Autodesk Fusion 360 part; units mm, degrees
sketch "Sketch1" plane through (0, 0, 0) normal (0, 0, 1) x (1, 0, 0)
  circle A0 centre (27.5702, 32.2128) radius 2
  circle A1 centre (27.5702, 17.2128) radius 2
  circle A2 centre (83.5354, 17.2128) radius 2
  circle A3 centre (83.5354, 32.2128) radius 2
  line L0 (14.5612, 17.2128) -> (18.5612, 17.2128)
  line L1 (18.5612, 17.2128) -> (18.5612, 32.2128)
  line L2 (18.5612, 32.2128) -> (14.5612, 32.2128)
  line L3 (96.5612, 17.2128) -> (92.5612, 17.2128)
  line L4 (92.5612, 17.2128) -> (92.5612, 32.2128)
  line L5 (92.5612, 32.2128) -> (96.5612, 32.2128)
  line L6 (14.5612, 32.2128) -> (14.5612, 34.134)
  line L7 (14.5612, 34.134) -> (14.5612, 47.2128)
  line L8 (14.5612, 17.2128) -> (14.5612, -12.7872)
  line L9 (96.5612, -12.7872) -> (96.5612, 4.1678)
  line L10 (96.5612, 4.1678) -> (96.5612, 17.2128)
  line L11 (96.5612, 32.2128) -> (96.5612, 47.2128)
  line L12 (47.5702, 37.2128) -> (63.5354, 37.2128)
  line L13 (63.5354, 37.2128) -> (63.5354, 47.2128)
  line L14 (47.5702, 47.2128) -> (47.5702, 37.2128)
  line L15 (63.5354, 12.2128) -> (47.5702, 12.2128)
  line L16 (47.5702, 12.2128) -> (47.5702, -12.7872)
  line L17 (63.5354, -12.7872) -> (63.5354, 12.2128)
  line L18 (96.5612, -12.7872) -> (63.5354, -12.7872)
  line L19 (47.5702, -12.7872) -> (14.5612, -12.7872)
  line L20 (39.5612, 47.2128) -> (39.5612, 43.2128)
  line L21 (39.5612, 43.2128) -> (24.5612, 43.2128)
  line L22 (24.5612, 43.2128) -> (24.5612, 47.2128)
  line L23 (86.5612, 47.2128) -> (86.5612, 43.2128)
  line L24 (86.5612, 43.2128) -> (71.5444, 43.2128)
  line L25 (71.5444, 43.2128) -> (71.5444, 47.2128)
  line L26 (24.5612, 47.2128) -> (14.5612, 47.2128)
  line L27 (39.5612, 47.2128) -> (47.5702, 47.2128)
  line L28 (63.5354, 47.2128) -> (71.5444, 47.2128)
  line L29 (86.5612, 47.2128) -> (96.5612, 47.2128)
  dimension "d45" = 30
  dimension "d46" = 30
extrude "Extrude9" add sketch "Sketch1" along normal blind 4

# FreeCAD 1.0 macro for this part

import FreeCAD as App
import Part
import Sketcher


def add_polygon(sketch, points):
    """Adds a closed chain of lines whose ends are joined by coincident constraints."""
    first, n = sketch.GeometryCount, len(points)
    for a, b in zip(points, points[1:] + points[:1]):
        sketch.addGeometry(Part.LineSegment(App.Vector(*a, 0), App.Vector(*b, 0)), False)
    for i in range(n):
        sketch.addConstraint(Sketcher.Constraint("Coincident", first + i, 2, first + (i + 1) % n, 1))

doc = App.newDocument("Part")
body = doc.addObject("PartDesign::Body", "Body")

# Sketch on XY plane
sketch1 = body.newObject("Sketcher::SketchObject", "Sketch")
sketch1.AttachmentSupport = (doc.getObject("XY_Plane"), [""])
sketch1.MapMode = "FlatFace"
add_polygon(sketch1, [(18.5612, 17.2128), (14.5612, 17.2128), (14.5612, -12.7872), (47.5702, -12.7872), (47.5702, 12.2128), (63.5354, 12.2128), (63.5354, -12.7872), (96.5612, -12.7872), (96.5612, 17.2128), (92.5612, 17.2128), (92.5612, 32.2128), (96.5612, 32.2128), (96.5612, 47.2128), (86.5612, 47.2128), (86.5612, 43.2128), (71.5444, 43.2128), (71.5444, 47.2128), (63.5354, 47.2128), (63.5354, 37.2128), (47.5702, 37.2128), (47.5702, 47.2128), (39.5612, 47.2128), (39.5612, 43.2128), (24.5612, 43.2128), (24.5612, 47.2128), (14.5612, 47.2128), (14.5612, 32.2128), (18.5612, 32.2128)])  # lines 0-27
sketch1.addGeometry(Part.Circle(App.Vector(27.5702, 17.2128, 0), App.Vector(0, 0, 1), 2), False)  # 28
sketch1.addGeometry(Part.Circle(App.Vector(27.5702, 32.2128, 0), App.Vector(0, 0, 1), 2), False)  # 29
sketch1.addGeometry(Part.Circle(App.Vector(83.5354, 17.2128, 0), App.Vector(0, 0, 1), 2), False)  # 30
sketch1.addGeometry(Part.Circle(App.Vector(83.5354, 32.2128, 0), App.Vector(0, 0, 1), 2), False)  # 31
sketch1.addConstraint(Sketcher.Constraint("Horizontal", 0))
sketch1.addConstraint(Sketcher.Constraint("Vertical", 1))
sketch1.addConstraint(Sketcher.Constraint("Horizontal", 2))
sketch1.addConstraint(Sketcher.Constraint("Vertical", 3))
sketch1.addConstraint(Sketcher.Constraint("Horizontal", 4))
sketch1.addConstraint(Sketcher.Constraint("Vertical", 5))
sketch1.addConstraint(Sketcher.Constraint("Horizontal", 6))
sketch1.addConstraint(Sketcher.Constraint("Vertical", 7))
sketch1.addConstraint(Sketcher.Constraint("Horizontal", 8))
sketch1.addConstraint(Sketcher.Constraint("Vertical", 9))
sketch1.addConstraint(Sketcher.Constraint("Horizontal", 10))
sketch1.addConstraint(Sketcher.Constraint("Vertical", 11))
sketch1.addConstraint(Sketcher.Constraint("Horizontal", 12))
sketch1.addConstraint(Sketcher.Constraint("Vertical", 13))
sketch1.addConstraint(Sketcher.Constraint("Horizontal", 14))
sketch1.addConstraint(Sketcher.Constraint("Vertical", 15))
sketch1.addConstraint(Sketcher.Constraint("Horizontal", 16))
sketch1.addConstraint(Sketcher.Constraint("Vertical", 17))
sketch1.addConstraint(Sketcher.Constraint("Horizontal", 18))
sketch1.addConstraint(Sketcher.Constraint("Vertical", 19))
sketch1.addConstraint(Sketcher.Constraint("Horizontal", 20))
sketch1.addConstraint(Sketcher.Constraint("Vertical", 21))
sketch1.addConstraint(Sketcher.Constraint("Horizontal", 22))
sketch1.addConstraint(Sketcher.Constraint("Vertical", 23))
sketch1.addConstraint(Sketcher.Constraint("Horizontal", 24))
sketch1.addConstraint(Sketcher.Constraint("Vertical", 25))
sketch1.addConstraint(Sketcher.Constraint("Horizontal", 26))
sketch1.addConstraint(Sketcher.Constraint("Vertical", 27))
sketch1.addConstraint(Sketcher.Constraint("Equal", 28, 29))
sketch1.addConstraint(Sketcher.Constraint("Equal", 29, 30))
sketch1.addConstraint(Sketcher.Constraint("Equal", 30, 31))
sketch1.addConstraint(Sketcher.Constraint("Horizontal", 28, 3, 30, 3))
sketch1.addConstraint(Sketcher.Constraint("Horizontal", 29, 3, 31, 3))
sketch1.addConstraint(Sketcher.Constraint("Horizontal", 30, 3, 0, 2))
sketch1.addConstraint(Sketcher.Constraint("Horizontal", 2, 2, 5, 2))
sketch1.addConstraint(Sketcher.Constraint("Horizontal", 0, 2, 7, 2))
sketch1.addConstraint(Sketcher.Constraint("Horizontal", 31, 3, 9, 2))
sketch1.addConstraint(Sketcher.Constraint("Horizontal", 12, 2, 15, 2))
sketch1.addConstraint(Sketcher.Constraint("Horizontal", 16, 2, 19, 2))
sketch1.addConstraint(Sketcher.Constraint("Horizontal", 14, 2, 21, 2))
sketch1.addConstraint(Sketcher.Constraint("Horizontal", 20, 2, 23, 2))
sketch1.addConstraint(Sketcher.Constraint("Horizontal", 10, 2, 25, 2))
sketch1.addConstraint(Sketcher.Constraint("Vertical", 28, 3, 29, 3))
sketch1.addConstraint(Sketcher.Constraint("Vertical", 30, 3, 31, 3))
sketch1.addConstraint(Sketcher.Constraint("Vertical", 7, 2, 10, 2))
sketch1.addConstraint(Sketcher.Constraint("Vertical", 5, 2, 16, 2))
sketch1.addConstraint(Sketcher.Constraint("Vertical", 3, 2, 18, 2))
sketch1.addConstraint(Sketcher.Constraint("Vertical", 1, 2, 24, 2))
sketch1.addConstraint(Sketcher.Constraint("Equal", 0, 8))
sketch1.addConstraint(Sketcher.Constraint("Equal", 16, 20))
sketch1.addConstraint(Sketcher.Constraint("Equal", 12, 24))
sketch1.addConstraint(Sketcher.Constraint("Equal", 22, 9))
sketch1.addConstraint(Sketcher.Constraint("Equal", 9, 11))
sketch1.addConstraint(Sketcher.Constraint("Equal", 26, 13))
sketch1.addConstraint(Sketcher.Constraint("Equal", 24, 17))
sketch1.addConstraint(Sketcher.Constraint("DistanceY", 1, 2, 1, 1, 30.0))
sketch1.addConstraint(Sketcher.Constraint("Diameter", 28, 4.0))
sketch1.addConstraint(Sketcher.Constraint("DistanceY", 7, 2, 11, 2, 30.0))
sketch1.addConstraint(Sketcher.Constraint("DistanceX", 0, 2, 0, 1, 4.0))
sketch1.addConstraint(Sketcher.Constraint("DistanceX", 12, 2, 12, 1, 10.0))
sketch1.addConstraint(Sketcher.Constraint("DistanceY", 3, 1, 3, 2, 25.0))
sketch1.addConstraint(Sketcher.Constraint("DistanceX", 28, 3, 2, 2, 20.0))
sketch1.addConstraint(Sketcher.Constraint("DistanceX", 4, 2, 30, 3, 20.0))
sketch1.addConstraint(Sketcher.Constraint("DistanceX", 2, 1, 2, 2, 33.009))
sketch1.addConstraint(Sketcher.Constraint("DistanceX", 4, 1, 4, 2, 15.9652))
sketch1.addConstraint(Sketcher.Constraint("DistanceX", 6, 1, 6, 2, 33.0258))
sketch1.addConstraint(Sketcher.Constraint("DistanceX", -1, 1, 28, 3, 27.5702))
sketch1.addConstraint(Sketcher.Constraint("DistanceY", -1, 1, 28, 3, 17.2128))
pad1 = body.newObject("PartDesign::Pad", "Pad")
pad1.Profile = sketch1
pad1.Length = 4

doc.recompute()
